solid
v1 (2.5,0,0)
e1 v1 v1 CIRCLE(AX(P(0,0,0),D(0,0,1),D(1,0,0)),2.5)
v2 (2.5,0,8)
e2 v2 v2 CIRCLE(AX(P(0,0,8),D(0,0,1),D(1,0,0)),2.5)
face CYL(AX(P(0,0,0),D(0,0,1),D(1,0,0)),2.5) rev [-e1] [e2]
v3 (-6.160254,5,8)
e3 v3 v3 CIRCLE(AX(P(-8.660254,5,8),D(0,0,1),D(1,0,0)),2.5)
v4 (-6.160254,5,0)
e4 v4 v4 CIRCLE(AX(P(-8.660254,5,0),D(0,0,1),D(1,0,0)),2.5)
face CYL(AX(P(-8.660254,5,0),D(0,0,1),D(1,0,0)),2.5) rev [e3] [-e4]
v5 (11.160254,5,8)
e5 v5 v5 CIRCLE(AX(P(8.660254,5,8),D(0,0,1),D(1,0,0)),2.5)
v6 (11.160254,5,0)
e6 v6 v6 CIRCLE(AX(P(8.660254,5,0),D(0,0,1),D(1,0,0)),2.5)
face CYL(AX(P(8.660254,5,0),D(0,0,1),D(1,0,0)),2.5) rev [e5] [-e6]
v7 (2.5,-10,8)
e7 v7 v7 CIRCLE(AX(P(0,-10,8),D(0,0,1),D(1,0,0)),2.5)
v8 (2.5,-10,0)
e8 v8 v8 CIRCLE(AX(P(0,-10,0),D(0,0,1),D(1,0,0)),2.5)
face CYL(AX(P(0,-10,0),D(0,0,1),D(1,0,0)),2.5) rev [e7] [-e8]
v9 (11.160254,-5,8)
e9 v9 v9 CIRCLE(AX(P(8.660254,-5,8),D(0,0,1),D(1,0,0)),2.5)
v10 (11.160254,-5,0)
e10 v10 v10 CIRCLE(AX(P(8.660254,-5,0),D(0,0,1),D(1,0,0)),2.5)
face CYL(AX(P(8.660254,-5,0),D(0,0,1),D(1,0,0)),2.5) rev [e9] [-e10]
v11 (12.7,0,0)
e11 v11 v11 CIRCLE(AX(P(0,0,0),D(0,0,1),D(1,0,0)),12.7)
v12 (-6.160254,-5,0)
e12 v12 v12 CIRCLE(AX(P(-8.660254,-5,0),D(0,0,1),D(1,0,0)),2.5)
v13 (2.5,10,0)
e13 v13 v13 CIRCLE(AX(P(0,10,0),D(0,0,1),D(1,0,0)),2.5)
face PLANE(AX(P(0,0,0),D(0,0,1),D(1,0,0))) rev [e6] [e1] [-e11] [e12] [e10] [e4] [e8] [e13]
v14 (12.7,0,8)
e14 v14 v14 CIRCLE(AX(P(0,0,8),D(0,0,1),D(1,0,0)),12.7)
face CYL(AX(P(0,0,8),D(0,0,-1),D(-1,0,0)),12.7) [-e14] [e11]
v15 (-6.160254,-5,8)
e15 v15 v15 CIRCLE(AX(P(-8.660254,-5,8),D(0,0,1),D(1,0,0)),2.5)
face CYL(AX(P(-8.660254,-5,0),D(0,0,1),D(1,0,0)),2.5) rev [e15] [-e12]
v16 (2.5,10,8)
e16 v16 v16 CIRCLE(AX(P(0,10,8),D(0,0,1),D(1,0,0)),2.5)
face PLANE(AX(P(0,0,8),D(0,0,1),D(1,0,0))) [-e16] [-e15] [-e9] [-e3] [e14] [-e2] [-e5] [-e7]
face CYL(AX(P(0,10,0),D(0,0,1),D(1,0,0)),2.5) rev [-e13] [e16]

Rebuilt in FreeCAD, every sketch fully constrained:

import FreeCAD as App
import Part
import Sketcher

V = App.Vector
Q = App.Units.Quantity

doc = App.newDocument("Part")
body = doc.addObject("PartDesign::Body", "Body")

# Sketch on XY plane
sketch1 = body.newObject("Sketcher::SketchObject", "Sketch")
sketch1.AttachmentSupport = (doc.getObject("XY_Plane"), [""])
sketch1.MapMode = "FlatFace"
sketch1.addGeometry(Part.Circle(V(0, 0, 0), V(0, 0, 1), 13), False)
sketch1.addConstraint([
    Sketcher.Constraint("Coincident", 0, 3, -1, 1),
    Sketcher.Constraint("Diameter", 0, Q("25.4 mm")),
])
pad1 = body.newObject("PartDesign::Pad", "Pad")
pad1.Profile = sketch1
pad1.Length = 8

# Sketch on XY plane
sketch2 = body.newObject("Sketcher::SketchObject", "Sketch001")
sketch2.AttachmentSupport = (doc.getObject("XY_Plane"), [""])
sketch2.MapMode = "FlatFace"
sketch2.AttachmentOffset = App.Placement(V(0, 0, 8), App.Rotation())
sketch2.addGeometry([
    Part.Circle(V(0, 10, 0), V(0, 0, 1), 2.5),  # 0
    Part.Circle(V(8.7, 5, 0), V(0, 0, 1), 2.5),  # 1
    Part.Circle(V(8.7, -5, 0), V(0, 0, 1), 2.5),  # 2
    Part.Circle(V(0, -10, 0), V(0, 0, 1), 2.5),  # 3
    Part.Circle(V(-8.7, -5, 0), V(0, 0, 1), 2.5),  # 4
    Part.Circle(V(-8.7, 5, 0), V(0, 0, 1), 2.5),  # 5
    Part.Circle(V(0, 0, 0), V(0, 0, 1), 2.5),  # 6
], False)
sketch2.addConstraint([
    Sketcher.Constraint("Coincident", 6, 3, -1, 1),
    Sketcher.Constraint("Equal", 0, 1),
    Sketcher.Constraint("Equal", 1, 2),
    Sketcher.Constraint("Equal", 2, 3),
    Sketcher.Constraint("Equal", 3, 4),
    Sketcher.Constraint("Equal", 4, 5),
    Sketcher.Constraint("Equal", 5, 6),
    Sketcher.Constraint("Symmetric", 0, 3, 3, 3, -1, 1),
    Sketcher.Constraint("Symmetric", 1, 3, 4, 3, -1, 1),
    Sketcher.Constraint("Symmetric", 2, 3, 5, 3, -1, 1),
    Sketcher.Constraint("Symmetric", 2, 3, 4, 3, -2),
    Sketcher.Constraint("PointOnObject", 0, 3, -2),
    Sketcher.Constraint("Diameter", 0, Q("5 mm")),
    Sketcher.Constraint("DistanceY", -1, 1, 0, 3, Q("10 mm")),
    Sketcher.Constraint("DistanceY", -1, 1, 1, 3, Q("5 mm")),
    Sketcher.Constraint("DistanceX", 4, 3, 2, 3, Q("17.320508 mm")),
])
pocket1 = body.newObject("PartDesign::Pocket", "Pocket")
pocket1.Profile = sketch2
pocket1.Length = 8

doc.recompute()
